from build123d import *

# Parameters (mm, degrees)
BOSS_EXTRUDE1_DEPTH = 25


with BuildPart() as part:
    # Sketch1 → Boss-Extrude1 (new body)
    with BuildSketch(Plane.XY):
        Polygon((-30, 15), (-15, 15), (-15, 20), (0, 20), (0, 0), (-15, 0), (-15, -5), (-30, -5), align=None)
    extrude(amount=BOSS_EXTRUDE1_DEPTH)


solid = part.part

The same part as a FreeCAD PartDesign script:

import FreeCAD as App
import Part
import Sketcher

V = App.Vector


def add_polygon(sketch, points):
    """Adds a closed chain of lines whose ends are joined by coincident constraints."""
    first, n = sketch.GeometryCount, len(points)
    for a, b in zip(points, points[1:] + points[:1]):
        sketch.addGeometry(Part.LineSegment(App.Vector(*a, 0), App.Vector(*b, 0)), False)
    for i in range(n):
        sketch.addConstraint(Sketcher.Constraint("Coincident", first + i, 2, first + (i + 1) % n, 1))

doc = App.newDocument("Part")
body = doc.addObject("PartDesign::Body", "Body")

# Sketch on XY plane
sketch1 = body.newObject("Sketcher::SketchObject", "Sketch")
sketch1.AttachmentSupport = (doc.getObject("XY_Plane"), [""])
sketch1.MapMode = "FlatFace"
add_polygon(sketch1, [(-15, 15), (-30, 15), (-30, -5), (-15, -5), (-15, 0), (0, 0), (0, 20), (-15, 20)])  # lines 0-7
sketch1.addConstraint(Sketcher.Constraint("Horizontal", 0))
sketch1.addConstraint(Sketcher.Constraint("Vertical", 1))
sketch1.addConstraint(Sketcher.Constraint("Horizontal", 2))
sketch1.addConstraint(Sketcher.Constraint("Vertical", 3))
sketch1.addConstraint(Sketcher.Constraint("Horizontal", 4))
sketch1.addConstraint(Sketcher.Constraint("Vertical", 5))
sketch1.addConstraint(Sketcher.Constraint("Horizontal", 6))
sketch1.addConstraint(Sketcher.Constraint("Vertical", 7))
sketch1.addConstraint(Sketcher.Constraint("Coincident", 4, 2, -1, 1))
sketch1.addConstraint(Sketcher.Constraint("Vertical", 3, 2, 6, 2))
sketch1.addConstraint(Sketcher.Constraint("Equal", 2, 4))
sketch1.addConstraint(Sketcher.Constraint("Equal", 1, 5))
sketch1.addConstraint(Sketcher.Constraint("DistanceX", 0, 2, 0, 1, 15.0))
sketch1.addConstraint(Sketcher.Constraint("DistanceY", 1, 2, 1, 1, 20.0))
sketch1.addConstraint(Sketcher.Constraint("DistanceY", 3, 1, 3, 2, 5.0))
pad1 = body.newObject("PartDesign::Pad", "Pad")
pad1.Profile = sketch1
pad1.Length = 25

doc.recompute()
